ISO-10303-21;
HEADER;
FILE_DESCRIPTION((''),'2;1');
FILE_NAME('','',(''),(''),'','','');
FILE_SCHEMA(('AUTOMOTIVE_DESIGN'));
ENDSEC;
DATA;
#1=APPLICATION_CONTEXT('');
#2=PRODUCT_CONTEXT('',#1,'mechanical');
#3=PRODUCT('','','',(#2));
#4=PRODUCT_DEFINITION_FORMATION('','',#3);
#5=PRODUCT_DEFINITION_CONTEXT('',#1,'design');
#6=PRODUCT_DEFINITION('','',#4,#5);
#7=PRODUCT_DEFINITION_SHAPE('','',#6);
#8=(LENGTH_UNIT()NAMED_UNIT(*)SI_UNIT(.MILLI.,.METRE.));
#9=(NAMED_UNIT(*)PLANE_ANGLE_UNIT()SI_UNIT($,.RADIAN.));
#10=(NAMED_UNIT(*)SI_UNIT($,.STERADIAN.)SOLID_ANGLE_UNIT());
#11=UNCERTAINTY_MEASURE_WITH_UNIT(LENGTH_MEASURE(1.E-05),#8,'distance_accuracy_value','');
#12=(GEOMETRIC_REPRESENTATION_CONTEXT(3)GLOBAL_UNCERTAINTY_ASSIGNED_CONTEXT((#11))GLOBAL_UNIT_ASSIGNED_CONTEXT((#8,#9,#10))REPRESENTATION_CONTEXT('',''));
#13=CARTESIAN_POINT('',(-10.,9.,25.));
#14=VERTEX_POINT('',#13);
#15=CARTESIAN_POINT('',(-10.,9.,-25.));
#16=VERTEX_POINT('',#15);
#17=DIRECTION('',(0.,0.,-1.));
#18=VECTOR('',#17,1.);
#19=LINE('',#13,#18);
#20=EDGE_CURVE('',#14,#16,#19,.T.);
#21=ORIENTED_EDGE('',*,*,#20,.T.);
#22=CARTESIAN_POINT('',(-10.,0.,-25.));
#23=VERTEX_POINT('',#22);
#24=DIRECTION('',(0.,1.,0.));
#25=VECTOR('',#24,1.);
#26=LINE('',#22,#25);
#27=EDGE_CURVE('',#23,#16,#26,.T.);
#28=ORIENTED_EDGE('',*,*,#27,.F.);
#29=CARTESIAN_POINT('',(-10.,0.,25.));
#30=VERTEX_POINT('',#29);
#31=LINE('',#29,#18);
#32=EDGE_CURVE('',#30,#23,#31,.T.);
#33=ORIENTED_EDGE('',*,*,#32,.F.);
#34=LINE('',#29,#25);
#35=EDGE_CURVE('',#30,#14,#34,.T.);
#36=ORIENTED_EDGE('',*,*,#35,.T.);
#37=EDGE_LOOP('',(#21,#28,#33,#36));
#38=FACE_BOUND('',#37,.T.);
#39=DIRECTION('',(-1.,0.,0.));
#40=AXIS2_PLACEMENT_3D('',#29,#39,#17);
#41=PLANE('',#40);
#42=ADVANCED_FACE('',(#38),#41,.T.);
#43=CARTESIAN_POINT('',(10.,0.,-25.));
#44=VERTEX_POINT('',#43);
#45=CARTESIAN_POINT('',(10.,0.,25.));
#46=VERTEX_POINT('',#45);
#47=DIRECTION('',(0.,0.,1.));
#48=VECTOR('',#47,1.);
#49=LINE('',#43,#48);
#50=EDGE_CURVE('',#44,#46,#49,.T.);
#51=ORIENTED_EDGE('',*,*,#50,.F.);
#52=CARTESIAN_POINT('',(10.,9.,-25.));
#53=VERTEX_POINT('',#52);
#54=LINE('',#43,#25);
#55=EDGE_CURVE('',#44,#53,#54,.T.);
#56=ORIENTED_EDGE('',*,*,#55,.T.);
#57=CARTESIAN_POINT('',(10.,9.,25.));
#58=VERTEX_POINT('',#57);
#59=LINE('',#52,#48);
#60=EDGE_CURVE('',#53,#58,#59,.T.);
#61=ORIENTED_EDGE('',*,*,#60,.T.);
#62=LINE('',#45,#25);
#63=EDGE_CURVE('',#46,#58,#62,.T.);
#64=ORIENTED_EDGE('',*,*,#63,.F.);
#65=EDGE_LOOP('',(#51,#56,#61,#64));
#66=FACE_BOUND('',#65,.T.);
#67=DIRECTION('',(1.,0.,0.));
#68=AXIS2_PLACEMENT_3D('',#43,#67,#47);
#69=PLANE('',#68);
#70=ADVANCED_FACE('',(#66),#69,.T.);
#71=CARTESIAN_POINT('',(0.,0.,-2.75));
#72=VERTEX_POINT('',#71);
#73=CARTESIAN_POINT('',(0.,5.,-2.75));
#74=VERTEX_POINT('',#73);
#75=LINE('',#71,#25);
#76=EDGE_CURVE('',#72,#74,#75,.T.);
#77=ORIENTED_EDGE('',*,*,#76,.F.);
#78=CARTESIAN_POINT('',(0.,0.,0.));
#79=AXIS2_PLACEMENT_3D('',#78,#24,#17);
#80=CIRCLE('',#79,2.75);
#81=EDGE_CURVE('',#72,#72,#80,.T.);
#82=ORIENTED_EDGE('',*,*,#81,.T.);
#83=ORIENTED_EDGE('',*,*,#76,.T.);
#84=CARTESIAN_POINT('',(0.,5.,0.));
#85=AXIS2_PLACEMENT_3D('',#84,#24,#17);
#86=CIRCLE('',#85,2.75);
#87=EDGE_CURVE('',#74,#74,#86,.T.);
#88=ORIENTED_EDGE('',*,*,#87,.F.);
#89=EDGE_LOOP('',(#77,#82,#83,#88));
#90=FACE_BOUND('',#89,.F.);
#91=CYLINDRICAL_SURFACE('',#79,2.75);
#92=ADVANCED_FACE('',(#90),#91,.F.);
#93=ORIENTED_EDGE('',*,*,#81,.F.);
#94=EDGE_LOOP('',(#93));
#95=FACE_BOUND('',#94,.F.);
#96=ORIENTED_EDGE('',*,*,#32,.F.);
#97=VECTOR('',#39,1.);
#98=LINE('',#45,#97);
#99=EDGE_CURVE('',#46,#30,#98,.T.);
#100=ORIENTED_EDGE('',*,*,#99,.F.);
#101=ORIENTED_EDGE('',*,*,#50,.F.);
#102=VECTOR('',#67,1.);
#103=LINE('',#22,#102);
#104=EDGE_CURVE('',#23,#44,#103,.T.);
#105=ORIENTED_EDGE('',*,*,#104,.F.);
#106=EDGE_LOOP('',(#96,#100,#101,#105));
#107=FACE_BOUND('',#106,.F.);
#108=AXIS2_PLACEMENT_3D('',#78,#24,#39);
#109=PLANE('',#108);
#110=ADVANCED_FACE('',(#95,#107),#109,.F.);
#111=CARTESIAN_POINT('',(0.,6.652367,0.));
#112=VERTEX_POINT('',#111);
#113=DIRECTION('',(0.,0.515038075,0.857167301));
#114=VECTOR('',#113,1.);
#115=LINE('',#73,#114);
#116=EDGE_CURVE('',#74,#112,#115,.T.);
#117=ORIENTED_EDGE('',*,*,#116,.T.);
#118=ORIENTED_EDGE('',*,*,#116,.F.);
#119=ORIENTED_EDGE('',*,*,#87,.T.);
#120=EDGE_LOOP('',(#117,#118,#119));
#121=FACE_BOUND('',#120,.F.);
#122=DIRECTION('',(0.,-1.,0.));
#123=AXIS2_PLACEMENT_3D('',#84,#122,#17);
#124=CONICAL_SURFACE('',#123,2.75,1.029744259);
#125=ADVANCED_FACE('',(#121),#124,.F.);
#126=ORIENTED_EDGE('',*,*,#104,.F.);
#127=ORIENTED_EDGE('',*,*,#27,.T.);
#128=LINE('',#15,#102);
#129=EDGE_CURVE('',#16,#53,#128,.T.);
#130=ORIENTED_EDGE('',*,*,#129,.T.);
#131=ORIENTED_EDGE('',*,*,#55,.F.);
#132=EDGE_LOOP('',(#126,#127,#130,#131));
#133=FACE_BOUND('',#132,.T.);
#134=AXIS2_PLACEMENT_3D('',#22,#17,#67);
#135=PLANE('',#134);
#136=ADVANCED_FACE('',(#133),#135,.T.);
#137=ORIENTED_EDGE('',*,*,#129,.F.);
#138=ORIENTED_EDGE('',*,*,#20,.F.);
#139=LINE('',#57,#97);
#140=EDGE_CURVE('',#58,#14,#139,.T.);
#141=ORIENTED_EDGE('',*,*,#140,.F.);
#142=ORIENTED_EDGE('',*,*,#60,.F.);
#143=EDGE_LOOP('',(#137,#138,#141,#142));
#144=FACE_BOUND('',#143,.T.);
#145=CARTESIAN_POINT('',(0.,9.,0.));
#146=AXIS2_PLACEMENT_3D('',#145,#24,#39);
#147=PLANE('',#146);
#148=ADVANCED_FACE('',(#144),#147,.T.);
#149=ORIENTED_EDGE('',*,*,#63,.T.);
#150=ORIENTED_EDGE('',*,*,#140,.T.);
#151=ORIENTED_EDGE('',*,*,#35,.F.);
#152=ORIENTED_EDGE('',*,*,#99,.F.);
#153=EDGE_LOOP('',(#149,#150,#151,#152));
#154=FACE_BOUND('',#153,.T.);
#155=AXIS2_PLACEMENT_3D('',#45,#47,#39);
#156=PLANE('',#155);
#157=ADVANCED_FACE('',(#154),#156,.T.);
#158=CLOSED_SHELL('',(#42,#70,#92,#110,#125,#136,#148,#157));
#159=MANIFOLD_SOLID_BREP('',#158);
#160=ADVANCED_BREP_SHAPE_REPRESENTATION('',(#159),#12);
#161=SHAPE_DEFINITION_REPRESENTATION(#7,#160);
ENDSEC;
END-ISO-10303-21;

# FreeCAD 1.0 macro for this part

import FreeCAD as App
import Part
import Sketcher
Q = App.Units.Quantity


def add_polygon(sketch, points):
    """Adds a closed chain of lines whose ends are joined by coincident constraints."""
    first, n = sketch.GeometryCount, len(points)
    for a, b in zip(points, points[1:] + points[:1]):
        sketch.addGeometry(Part.LineSegment(App.Vector(*a, 0), App.Vector(*b, 0)), False)
    for i in range(n):
        sketch.addConstraint(Sketcher.Constraint("Coincident", first + i, 2, first + (i + 1) % n, 1))

doc = App.newDocument("Part")
body = doc.addObject("PartDesign::Body", "Body")

# Sketch on XZ plane
sketch1 = body.newObject("Sketcher::SketchObject", "Sketch")
sketch1.AttachmentSupport = (doc.getObject("XZ_Plane"), [""])
sketch1.MapMode = "FlatFace"
add_polygon(sketch1, [(-10, 25), (10, 25), (10, -25), (-10, -25)])  # lines 0-3
sketch1.addConstraint([
    Sketcher.Constraint("Horizontal", 0),
    Sketcher.Constraint("Vertical", 1),
    Sketcher.Constraint("Horizontal", 2),
    Sketcher.Constraint("Vertical", 3),
    Sketcher.Constraint("Symmetric", 0, 2, 2, 2, -1, 1),
    Sketcher.Constraint("DistanceX", 0, 1, 0, 2, Q("20 mm")),
    Sketcher.Constraint("DistanceY", 1, 2, 1, 1, Q("50 mm")),
])
pad1 = body.newObject("PartDesign::Pad", "Pad")
pad1.Profile = sketch1
pad1.Length = 9
pad1.Reversed = True

# Sketch on XZ plane
sketch2 = body.newObject("Sketcher::SketchObject", "Sketch001")
sketch2.AttachmentSupport = (doc.getObject("XZ_Plane"), [""])
sketch2.MapMode = "FlatFace"
sketch2.addGeometry(Part.Circle(App.Vector(0, 0, 0), App.Vector(0, 0, 1), 2.8), False)
sketch2.addConstraint([
    Sketcher.Constraint("Coincident", 0, 3, -1, 1),
    Sketcher.Constraint("Diameter", 0, Q("5.5 mm")),
])
doc.recompute()
hole = body.newObject("PartDesign::Hole", "Hole")
hole.Profile = sketch2
hole.ThreadType = "None"
hole.Diameter = 5.5
hole.DepthType = "Dimension"
hole.Depth = 5
hole.DrillPoint = "Angled"
hole.DrillPointAngle = 118

doc.recompute()
